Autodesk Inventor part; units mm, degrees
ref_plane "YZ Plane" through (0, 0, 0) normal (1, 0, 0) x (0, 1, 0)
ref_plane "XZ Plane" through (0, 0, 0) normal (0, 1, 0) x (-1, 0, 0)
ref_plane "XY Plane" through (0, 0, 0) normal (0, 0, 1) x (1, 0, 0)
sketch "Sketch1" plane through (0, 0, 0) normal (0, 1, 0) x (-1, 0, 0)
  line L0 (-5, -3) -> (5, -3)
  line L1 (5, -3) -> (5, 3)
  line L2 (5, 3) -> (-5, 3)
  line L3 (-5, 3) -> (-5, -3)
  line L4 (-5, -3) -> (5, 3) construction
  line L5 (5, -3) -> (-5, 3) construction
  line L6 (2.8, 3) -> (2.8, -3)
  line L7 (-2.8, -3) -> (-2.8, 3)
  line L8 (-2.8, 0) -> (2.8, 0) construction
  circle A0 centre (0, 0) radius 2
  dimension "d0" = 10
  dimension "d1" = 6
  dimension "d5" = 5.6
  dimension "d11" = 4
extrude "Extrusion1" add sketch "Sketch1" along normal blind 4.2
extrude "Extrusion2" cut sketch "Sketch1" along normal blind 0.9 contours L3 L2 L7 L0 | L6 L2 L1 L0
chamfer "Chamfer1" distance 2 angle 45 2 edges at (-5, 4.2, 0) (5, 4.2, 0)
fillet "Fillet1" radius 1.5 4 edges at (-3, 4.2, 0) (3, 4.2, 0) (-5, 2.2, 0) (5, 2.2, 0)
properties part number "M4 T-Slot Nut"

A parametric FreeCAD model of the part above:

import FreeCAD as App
import Part
import Sketcher
Q = App.Units.Quantity


def edges_at(feature, points):
    """Names of the edges that pass closest to the given points."""
    edges = feature.Shape.Edges
    near = lambda p: min(range(len(edges)), key=lambda i: edges[i].distToShape(Part.Vertex(*p))[0])
    return sorted({f"Edge{near(p) + 1}" for p in points})


def add_polygon(sketch, points):
    """Adds a closed chain of lines whose ends are joined by coincident constraints."""
    first, n = sketch.GeometryCount, len(points)
    for a, b in zip(points, points[1:] + points[:1]):
        sketch.addGeometry(Part.LineSegment(App.Vector(*a, 0), App.Vector(*b, 0)), False)
    for i in range(n):
        sketch.addConstraint(Sketcher.Constraint("Coincident", first + i, 2, first + (i + 1) % n, 1))

doc = App.newDocument("Part")
body = doc.addObject("PartDesign::Body", "Body")

sketch1 = body.newObject("Sketcher::SketchObject", "Sketch")
sketch1.AttachmentSupport = (doc.getObject("XZ_Plane"), [""])
sketch1.MapMode = "FlatFace"
add_polygon(sketch1, [(5, 3), (5, -3), (-5, -3), (-5, 3)])
sketch1.addGeometry(Part.Circle(App.Vector(0, 0, 0), App.Vector(0, 0, 1), 2), False)
sketch1.addConstraint([
    Sketcher.Constraint("Vertical", 0),
    Sketcher.Constraint("Horizontal", 1),
    Sketcher.Constraint("Vertical", 2),
    Sketcher.Constraint("Horizontal", 3),
    Sketcher.Constraint("Coincident", 4, 3, -1, 1),
    Sketcher.Constraint("Symmetric", 0, 2, 2, 2, -1, 1),
    Sketcher.Constraint("Diameter", 4, Q("4 mm")),
    Sketcher.Constraint("DistanceX", 1, 2, 1, 1, Q("10 mm")),
    Sketcher.Constraint("DistanceY", 0, 2, 0, 1, Q("6 mm")),
])
pad1 = body.newObject("PartDesign::Pad", "Pad")
pad1.Profile = sketch1
pad1.Length = 4.2
pad1.Reversed = True

sketch2 = body.newObject("Sketcher::SketchObject", "Sketch001")
sketch2.AttachmentSupport = (doc.getObject("XZ_Plane"), [""])
sketch2.MapMode = "FlatFace"
add_polygon(sketch2, [(5, 3), (5, -3), (2.8, -3), (2.8, 3)])
add_polygon(sketch2, [(-2.8, 3), (-2.8, -3), (-5, -3), (-5, 3)])
sketch2.addConstraint([
    Sketcher.Constraint("Vertical", 0),
    Sketcher.Constraint("Horizontal", 1),
    Sketcher.Constraint("Vertical", 2),
    Sketcher.Constraint("Horizontal", 3),
    Sketcher.Constraint("Vertical", 4),
    Sketcher.Constraint("Horizontal", 5),
    Sketcher.Constraint("Vertical", 6),
    Sketcher.Constraint("Horizontal", 7),
    Sketcher.Constraint("Symmetric", 2, 2, 4, 2, -1, 1),
    Sketcher.Constraint("Symmetric", 0, 2, 6, 2, -1, 1),
    Sketcher.Constraint("Horizontal", 1, 2, 4, 2),
    Sketcher.Constraint("DistanceY", 0, 2, 0, 1, Q("6 mm")),
    Sketcher.Constraint("DistanceX", 5, 2, 0, 2, Q("10 mm")),
    Sketcher.Constraint("DistanceX", 4, 2, 1, 2, Q("5.6 mm")),
])
pocket1 = body.newObject("PartDesign::Pocket", "Pocket")
pocket1.Profile = sketch2
pocket1.Length = 0.9
doc.recompute()

chamfer = body.newObject("PartDesign::Chamfer", "Chamfer")
chamfer.Base = (pocket1, edges_at(pocket1, [(-5, 4.2, 0), (5, 4.2, 0)]))
chamfer.Size = 2
doc.recompute()

fillet = body.newObject("PartDesign::Fillet", "Fillet")
fillet.Base = (chamfer, edges_at(chamfer, [
    (-3, 4.2, 0),
    (3, 4.2, 0),
    (-5, 2.2, 0),
    (5, 2.2, 0),
]))
fillet.Radius = 1.5

doc.recompute()
